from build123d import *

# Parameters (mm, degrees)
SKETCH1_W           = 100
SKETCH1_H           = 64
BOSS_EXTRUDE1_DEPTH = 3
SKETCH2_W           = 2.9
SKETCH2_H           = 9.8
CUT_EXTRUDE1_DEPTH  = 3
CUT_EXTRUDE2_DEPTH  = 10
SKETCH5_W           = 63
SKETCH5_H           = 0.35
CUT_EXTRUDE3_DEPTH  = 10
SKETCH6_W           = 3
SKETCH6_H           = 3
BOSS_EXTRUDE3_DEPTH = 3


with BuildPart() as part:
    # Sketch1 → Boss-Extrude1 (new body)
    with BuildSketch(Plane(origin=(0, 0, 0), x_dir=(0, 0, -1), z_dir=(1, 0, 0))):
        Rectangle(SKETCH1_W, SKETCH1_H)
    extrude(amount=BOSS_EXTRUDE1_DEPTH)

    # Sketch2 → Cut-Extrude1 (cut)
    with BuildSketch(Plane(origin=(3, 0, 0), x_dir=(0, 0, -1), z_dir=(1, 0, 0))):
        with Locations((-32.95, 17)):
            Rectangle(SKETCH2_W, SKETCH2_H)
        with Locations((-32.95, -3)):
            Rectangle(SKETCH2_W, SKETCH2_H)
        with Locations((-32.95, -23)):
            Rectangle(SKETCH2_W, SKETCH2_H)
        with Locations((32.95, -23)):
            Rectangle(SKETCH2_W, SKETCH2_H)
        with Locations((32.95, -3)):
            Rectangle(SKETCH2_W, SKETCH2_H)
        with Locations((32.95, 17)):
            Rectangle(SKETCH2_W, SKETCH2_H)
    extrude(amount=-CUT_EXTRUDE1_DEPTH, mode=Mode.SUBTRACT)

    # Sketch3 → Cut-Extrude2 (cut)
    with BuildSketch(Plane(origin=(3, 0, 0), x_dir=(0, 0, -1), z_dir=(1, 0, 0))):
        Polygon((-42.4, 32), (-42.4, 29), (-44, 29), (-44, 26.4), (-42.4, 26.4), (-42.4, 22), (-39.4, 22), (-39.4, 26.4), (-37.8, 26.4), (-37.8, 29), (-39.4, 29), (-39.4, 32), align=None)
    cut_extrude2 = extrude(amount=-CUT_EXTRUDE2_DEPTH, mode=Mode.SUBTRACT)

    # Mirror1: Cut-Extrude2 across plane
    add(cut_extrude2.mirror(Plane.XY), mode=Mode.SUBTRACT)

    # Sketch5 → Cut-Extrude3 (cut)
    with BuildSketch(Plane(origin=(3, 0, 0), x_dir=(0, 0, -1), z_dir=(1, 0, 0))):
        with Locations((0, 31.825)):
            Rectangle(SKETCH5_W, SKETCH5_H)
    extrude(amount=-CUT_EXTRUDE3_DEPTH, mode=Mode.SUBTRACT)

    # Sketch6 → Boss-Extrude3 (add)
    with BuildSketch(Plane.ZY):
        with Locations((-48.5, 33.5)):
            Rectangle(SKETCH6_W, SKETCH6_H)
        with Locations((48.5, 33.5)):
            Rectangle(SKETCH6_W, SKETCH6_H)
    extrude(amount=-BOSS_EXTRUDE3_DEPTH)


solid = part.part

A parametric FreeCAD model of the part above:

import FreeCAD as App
import Part
import Sketcher
from FreeCAD import Vector

doc = App.newDocument("Part")
body = doc.addObject("PartDesign::Body", "Body")

sketch1 = doc.addObject("Sketcher::SketchObject", "Sketch")
body.addObject(sketch1)
sketch1.AttachmentSupport = (doc.YZ_Plane, [""])
sketch1.MapMode = "FlatFace"
sketch1.addGeometry(Part.LineSegment(Vector(32, 50, 0), Vector(-32, 50, 0)), False)
sketch1.addGeometry(Part.LineSegment(Vector(-32, 50, 0), Vector(-32, -50, 0)), False)
sketch1.addGeometry(Part.LineSegment(Vector(-32, -50, 0), Vector(32, -50, 0)), False)
sketch1.addGeometry(Part.LineSegment(Vector(32, -50, 0), Vector(32, 50, 0)), False)
sketch1.addConstraint(Sketcher.Constraint("Coincident", 0, 2, 1, 1))
sketch1.addConstraint(Sketcher.Constraint("Coincident", 1, 2, 2, 1))
sketch1.addConstraint(Sketcher.Constraint("Coincident", 2, 2, 3, 1))
sketch1.addConstraint(Sketcher.Constraint("Coincident", 3, 2, 0, 1))
sketch1.addConstraint(Sketcher.Constraint("Horizontal", 0))
sketch1.addConstraint(Sketcher.Constraint("Vertical", 1))
sketch1.addConstraint(Sketcher.Constraint("Horizontal", 2))
sketch1.addConstraint(Sketcher.Constraint("Vertical", 3))
sketch1.addConstraint(Sketcher.Constraint("Symmetric", 0, 2, 2, 2, -1, 1))
sketch1.addConstraint(Sketcher.Constraint("DistanceX", 0, 2, 0, 1, 64.0))
sketch1.addConstraint(Sketcher.Constraint("DistanceY", 1, 2, 1, 1, 100.0))
pad1 = doc.addObject("PartDesign::Pad", "Pad")
body.addObject(pad1)
pad1.Profile = sketch1
pad1.Length = 3

sketch2 = doc.addObject("Sketcher::SketchObject", "Sketch001")
body.addObject(sketch2)
sketch2.AttachmentSupport = (doc.YZ_Plane, [""])
sketch2.MapMode = "FlatFace"
sketch2.AttachmentOffset = App.Placement(Vector(0, 0, 3), App.Rotation())
sketch2.addGeometry(Part.LineSegment(Vector(21.9, 34.4, 0), Vector(12.1, 34.4, 0)), False)
sketch2.addGeometry(Part.LineSegment(Vector(12.1, 34.4, 0), Vector(12.1, 31.5, 0)), False)
sketch2.addGeometry(Part.LineSegment(Vector(12.1, 31.5, 0), Vector(21.9, 31.5, 0)), False)
sketch2.addGeometry(Part.LineSegment(Vector(21.9, 31.5, 0), Vector(21.9, 34.4, 0)), False)
sketch2.addGeometry(Part.LineSegment(Vector(1.9, 34.4, 0), Vector(-7.9, 34.4, 0)), False)
sketch2.addGeometry(Part.LineSegment(Vector(-7.9, 34.4, 0), Vector(-7.9, 31.5, 0)), False)
sketch2.addGeometry(Part.LineSegment(Vector(-7.9, 31.5, 0), Vector(1.9, 31.5, 0)), False)
sketch2.addGeometry(Part.LineSegment(Vector(1.9, 31.5, 0), Vector(1.9, 34.4, 0)), False)
sketch2.addGeometry(Part.LineSegment(Vector(-18.1, 34.4, 0), Vector(-27.9, 34.4, 0)), False)
sketch2.addGeometry(Part.LineSegment(Vector(-27.9, 34.4, 0), Vector(-27.9, 31.5, 0)), False)
sketch2.addGeometry(Part.LineSegment(Vector(-27.9, 31.5, 0), Vector(-18.1, 31.5, 0)), False)
sketch2.addGeometry(Part.LineSegment(Vector(-18.1, 31.5, 0), Vector(-18.1, 34.4, 0)), False)
sketch2.addGeometry(Part.LineSegment(Vector(-18.1, -31.5, 0), Vector(-27.9, -31.5, 0)), False)
sketch2.addGeometry(Part.LineSegment(Vector(-27.9, -31.5, 0), Vector(-27.9, -34.4, 0)), False)
sketch2.addGeometry(Part.LineSegment(Vector(-27.9, -34.4, 0), Vector(-18.1, -34.4, 0)), False)
sketch2.addGeometry(Part.LineSegment(Vector(-18.1, -34.4, 0), Vector(-18.1, -31.5, 0)), False)
sketch2.addGeometry(Part.LineSegment(Vector(1.9, -31.5, 0), Vector(-7.9, -31.5, 0)), False)
sketch2.addGeometry(Part.LineSegment(Vector(-7.9, -31.5, 0), Vector(-7.9, -34.4, 0)), False)
sketch2.addGeometry(Part.LineSegment(Vector(-7.9, -34.4, 0), Vector(1.9, -34.4, 0)), False)
sketch2.addGeometry(Part.LineSegment(Vector(1.9, -34.4, 0), Vector(1.9, -31.5, 0)), False)
sketch2.addGeometry(Part.LineSegment(Vector(21.9, -31.5, 0), Vector(12.1, -31.5, 0)), False)
sketch2.addGeometry(Part.LineSegment(Vector(12.1, -31.5, 0), Vector(12.1, -34.4, 0)), False)
sketch2.addGeometry(Part.LineSegment(Vector(12.1, -34.4, 0), Vector(21.9, -34.4, 0)), False)
sketch2.addGeometry(Part.LineSegment(Vector(21.9, -34.4, 0), Vector(21.9, -31.5, 0)), False)
sketch2.addConstraint(Sketcher.Constraint("Coincident", 0, 2, 1, 1))
sketch2.addConstraint(Sketcher.Constraint("Coincident", 1, 2, 2, 1))
sketch2.addConstraint(Sketcher.Constraint("Coincident", 2, 2, 3, 1))
sketch2.addConstraint(Sketcher.Constraint("Coincident", 3, 2, 0, 1))
sketch2.addConstraint(Sketcher.Constraint("Coincident", 4, 2, 5, 1))
sketch2.addConstraint(Sketcher.Constraint("Coincident", 5, 2, 6, 1))
sketch2.addConstraint(Sketcher.Constraint("Coincident", 6, 2, 7, 1))
sketch2.addConstraint(Sketcher.Constraint("Coincident", 7, 2, 4, 1))
sketch2.addConstraint(Sketcher.Constraint("Coincident", 8, 2, 9, 1))
sketch2.addConstraint(Sketcher.Constraint("Coincident", 9, 2, 10, 1))
sketch2.addConstraint(Sketcher.Constraint("Coincident", 10, 2, 11, 1))
sketch2.addConstraint(Sketcher.Constraint("Coincident", 11, 2, 8, 1))
sketch2.addConstraint(Sketcher.Constraint("Coincident", 12, 2, 13, 1))
sketch2.addConstraint(Sketcher.Constraint("Coincident", 13, 2, 14, 1))
sketch2.addConstraint(Sketcher.Constraint("Coincident", 14, 2, 15, 1))
sketch2.addConstraint(Sketcher.Constraint("Coincident", 15, 2, 12, 1))
sketch2.addConstraint(Sketcher.Constraint("Coincident", 16, 2, 17, 1))
sketch2.addConstraint(Sketcher.Constraint("Coincident", 17, 2, 18, 1))
sketch2.addConstraint(Sketcher.Constraint("Coincident", 18, 2, 19, 1))
sketch2.addConstraint(Sketcher.Constraint("Coincident", 19, 2, 16, 1))
sketch2.addConstraint(Sketcher.Constraint("Coincident", 20, 2, 21, 1))
sketch2.addConstraint(Sketcher.Constraint("Coincident", 21, 2, 22, 1))
sketch2.addConstraint(Sketcher.Constraint("Coincident", 22, 2, 23, 1))
sketch2.addConstraint(Sketcher.Constraint("Coincident", 23, 2, 20, 1))
sketch2.addConstraint(Sketcher.Constraint("Horizontal", 0))
sketch2.addConstraint(Sketcher.Constraint("Vertical", 1))
sketch2.addConstraint(Sketcher.Constraint("Horizontal", 2))
sketch2.addConstraint(Sketcher.Constraint("Vertical", 3))
sketch2.addConstraint(Sketcher.Constraint("Horizontal", 4))
sketch2.addConstraint(Sketcher.Constraint("Vertical", 5))
sketch2.addConstraint(Sketcher.Constraint("Horizontal", 6))
sketch2.addConstraint(Sketcher.Constraint("Vertical", 7))
sketch2.addConstraint(Sketcher.Constraint("Horizontal", 8))
sketch2.addConstraint(Sketcher.Constraint("Vertical", 9))
sketch2.addConstraint(Sketcher.Constraint("Horizontal", 10))
sketch2.addConstraint(Sketcher.Constraint("Vertical", 11))
sketch2.addConstraint(Sketcher.Constraint("Horizontal", 12))
sketch2.addConstraint(Sketcher.Constraint("Vertical", 13))
sketch2.addConstraint(Sketcher.Constraint("Horizontal", 14))
sketch2.addConstraint(Sketcher.Constraint("Vertical", 15))
sketch2.addConstraint(Sketcher.Constraint("Horizontal", 16))
sketch2.addConstraint(Sketcher.Constraint("Vertical", 17))
sketch2.addConstraint(Sketcher.Constraint("Horizontal", 18))
sketch2.addConstraint(Sketcher.Constraint("Vertical", 19))
sketch2.addConstraint(Sketcher.Constraint("Horizontal", 20))
sketch2.addConstraint(Sketcher.Constraint("Vertical", 21))
sketch2.addConstraint(Sketcher.Constraint("Horizontal", 22))
sketch2.addConstraint(Sketcher.Constraint("Vertical", 23))
sketch2.addConstraint(Sketcher.Constraint("Symmetric", 9, 2, 12, 2, -1))
sketch2.addConstraint(Sketcher.Constraint("Symmetric", 11, 2, 14, 2, -1))
sketch2.addConstraint(Sketcher.Constraint("Symmetric", 5, 2, 16, 2, -1))
sketch2.addConstraint(Sketcher.Constraint("Symmetric", 7, 2, 18, 2, -1))
sketch2.addConstraint(Sketcher.Constraint("Symmetric", 1, 2, 20, 2, -1))
sketch2.addConstraint(Sketcher.Constraint("Symmetric", 3, 2, 22, 2, -1))
sketch2.addConstraint(Sketcher.Constraint("Horizontal", 3, 2, 4, 2))
sketch2.addConstraint(Sketcher.Constraint("Horizontal", 2, 2, 5, 2))
sketch2.addConstraint(Sketcher.Constraint("Horizontal", 7, 2, 8, 2))
sketch2.addConstraint(Sketcher.Constraint("Horizontal", 6, 2, 9, 2))
sketch2.addConstraint(Sketcher.Constraint("Equal", 2, 4))
sketch2.addConstraint(Sketcher.Constraint("Equal", 6, 8))
sketch2.addConstraint(Sketcher.Constraint("DistanceX", 0, 2, 0, 1, 9.8))
sketch2.addConstraint(Sketcher.Constraint("DistanceY", 1, 2, 1, 1, 2.9))
sketch2.addConstraint(Sketcher.Constraint("DistanceX", 4, 2, 0, 2, 20.0))
sketch2.addConstraint(Sketcher.Constraint("DistanceX", 8, 2, 4, 2, 20.0))
sketch2.addConstraint(Sketcher.Constraint("DistanceY", 12, 2, 9, 2, 63.0))
sketch2.addConstraint(Sketcher.Constraint("DistanceX", -1, 1, 0, 2, 12.1))
pocket1 = doc.addObject("PartDesign::Pocket", "Pocket")
body.addObject(pocket1)
pocket1.Profile = sketch2
pocket1.Length = 3

sketch3 = doc.addObject("Sketcher::SketchObject", "Sketch002")
body.addObject(sketch3)
sketch3.AttachmentSupport = (doc.YZ_Plane, [""])
sketch3.MapMode = "FlatFace"
sketch3.AttachmentOffset = App.Placement(Vector(0, 0, 3), App.Rotation())
sketch3.addGeometry(Part.LineSegment(Vector(32, 42.4, 0), Vector(29, 42.4, 0)), False)
sketch3.addGeometry(Part.LineSegment(Vector(29, 42.4, 0), Vector(29, 44, 0)), False)
sketch3.addGeometry(Part.LineSegment(Vector(29, 44, 0), Vector(26.4, 44, 0)), False)
sketch3.addGeometry(Part.LineSegment(Vector(26.4, 44, 0), Vector(26.4, 42.4, 0)), False)
sketch3.addGeometry(Part.LineSegment(Vector(26.4, 42.4, 0), Vector(22, 42.4, 0)), False)
sketch3.addGeometry(Part.LineSegment(Vector(22, 42.4, 0), Vector(22, 39.4, 0)), False)
sketch3.addGeometry(Part.LineSegment(Vector(22, 39.4, 0), Vector(26.4, 39.4, 0)), False)
sketch3.addGeometry(Part.LineSegment(Vector(26.4, 39.4, 0), Vector(26.4, 37.8, 0)), False)
sketch3.addGeometry(Part.LineSegment(Vector(26.4, 37.8, 0), Vector(29, 37.8, 0)), False)
sketch3.addGeometry(Part.LineSegment(Vector(29, 37.8, 0), Vector(29, 39.4, 0)), False)
sketch3.addGeometry(Part.LineSegment(Vector(29, 39.4, 0), Vector(32, 39.4, 0)), False)
sketch3.addGeometry(Part.LineSegment(Vector(32, 39.4, 0), Vector(32, 42.4, 0)), False)
sketch3.addConstraint(Sketcher.Constraint("Coincident", 0, 2, 1, 1))
sketch3.addConstraint(Sketcher.Constraint("Coincident", 1, 2, 2, 1))
sketch3.addConstraint(Sketcher.Constraint("Coincident", 2, 2, 3, 1))
sketch3.addConstraint(Sketcher.Constraint("Coincident", 3, 2, 4, 1))
sketch3.addConstraint(Sketcher.Constraint("Coincident", 4, 2, 5, 1))
sketch3.addConstraint(Sketcher.Constraint("Coincident", 5, 2, 6, 1))
sketch3.addConstraint(Sketcher.Constraint("Coincident", 6, 2, 7, 1))
sketch3.addConstraint(Sketcher.Constraint("Coincident", 7, 2, 8, 1))
sketch3.addConstraint(Sketcher.Constraint("Coincident", 8, 2, 9, 1))
sketch3.addConstraint(Sketcher.Constraint("Coincident", 9, 2, 10, 1))
sketch3.addConstraint(Sketcher.Constraint("Coincident", 10, 2, 11, 1))
sketch3.addConstraint(Sketcher.Constraint("Coincident", 11, 2, 0, 1))
sketch3.addConstraint(Sketcher.Constraint("Horizontal", 0))
sketch3.addConstraint(Sketcher.Constraint("Vertical", 1))
sketch3.addConstraint(Sketcher.Constraint("Horizontal", 2))
sketch3.addConstraint(Sketcher.Constraint("Vertical", 3))
sketch3.addConstraint(Sketcher.Constraint("Horizontal", 4))
sketch3.addConstraint(Sketcher.Constraint("Vertical", 5))
sketch3.addConstraint(Sketcher.Constraint("Horizontal", 6))
sketch3.addConstraint(Sketcher.Constraint("Vertical", 7))
sketch3.addConstraint(Sketcher.Constraint("Horizontal", 8))
sketch3.addConstraint(Sketcher.Constraint("Vertical", 9))
sketch3.addConstraint(Sketcher.Constraint("Horizontal", 10))
sketch3.addConstraint(Sketcher.Constraint("Vertical", 11))
sketch3.addConstraint(Sketcher.Constraint("Horizontal", 0, 2, 3, 2))
sketch3.addConstraint(Sketcher.Constraint("Horizontal", 6, 2, 9, 2))
sketch3.addConstraint(Sketcher.Constraint("Vertical", 3, 2, 6, 2))
sketch3.addConstraint(Sketcher.Constraint("Vertical", 1, 2, 8, 2))
sketch3.addConstraint(Sketcher.Constraint("Equal", 10, 5))
sketch3.addConstraint(Sketcher.Constraint("Equal", 3, 7))
sketch3.addConstraint(Sketcher.Constraint("DistanceX", 0, 2, 0, 1, 3.0))
sketch3.addConstraint(Sketcher.Constraint("DistanceX", 2, 2, 2, 1, 2.6))
sketch3.addConstraint(Sketcher.Constraint("DistanceX", 4, 2, 4, 1, 4.4))
sketch3.addConstraint(Sketcher.Constraint("DistanceY", 1, 1, 1, 2, 1.6))
sketch3.addConstraint(Sketcher.Constraint("DistanceX", -1, 1, 0, 2, 29.0))
sketch3.addConstraint(Sketcher.Constraint("DistanceY", -1, 1, 1, 2, 44.0))
pocket2 = doc.addObject("PartDesign::Pocket", "Pocket001")
body.addObject(pocket2)
pocket2.Profile = sketch3
pocket2.Length = 10
doc.recompute()

mirrored = doc.addObject("PartDesign::Mirrored", "Mirrored")
body.addObject(mirrored)
mirrored.Originals = [pocket2]
mirrored.MirrorPlane = (doc.XY_Plane, [""])
body.Tip = mirrored

sketch4 = doc.addObject("Sketcher::SketchObject", "Sketch003")
body.addObject(sketch4)
sketch4.AttachmentSupport = (doc.YZ_Plane, [""])
sketch4.MapMode = "FlatFace"
sketch4.AttachmentOffset = App.Placement(Vector(0, 0, 3), App.Rotation())
sketch4.addGeometry(Part.LineSegment(Vector(32, 31.5, 0), Vector(31.65, 31.5, 0)), False)
sketch4.addGeometry(Part.LineSegment(Vector(31.65, 31.5, 0), Vector(31.65, -31.5, 0)), False)
sketch4.addGeometry(Part.LineSegment(Vector(31.65, -31.5, 0), Vector(32, -31.5, 0)), False)
sketch4.addGeometry(Part.LineSegment(Vector(32, -31.5, 0), Vector(32, 31.5, 0)), False)
sketch4.addConstraint(Sketcher.Constraint("Coincident", 0, 2, 1, 1))
sketch4.addConstraint(Sketcher.Constraint("Coincident", 1, 2, 2, 1))
sketch4.addConstraint(Sketcher.Constraint("Coincident", 2, 2, 3, 1))
sketch4.addConstraint(Sketcher.Constraint("Coincident", 3, 2, 0, 1))
sketch4.addConstraint(Sketcher.Constraint("Horizontal", 0))
sketch4.addConstraint(Sketcher.Constraint("Vertical", 1))
sketch4.addConstraint(Sketcher.Constraint("Horizontal", 2))
sketch4.addConstraint(Sketcher.Constraint("Vertical", 3))
sketch4.addConstraint(Sketcher.Constraint("DistanceY", 1, 2, 1, 1, 63.0))
sketch4.addConstraint(Sketcher.Constraint("DistanceX", -1, 1, 2, 2, 32.0))
sketch4.addConstraint(Sketcher.Constraint("DistanceX", 0, 2, 0, 1, 0.35))
sketch4.addConstraint(Sketcher.Constraint("DistanceY", -1, 1, 0, 2, 31.5))
pocket3 = doc.addObject("PartDesign::Pocket", "Pocket002")
body.addObject(pocket3)
pocket3.Profile = sketch4
pocket3.Length = 10

sketch5 = doc.addObject("Sketcher::SketchObject", "Sketch004")
body.addObject(sketch5)
sketch5.AttachmentSupport = (doc.YZ_Plane, [""])
sketch5.MapMode = "FlatFace"
sketch5.addGeometry(Part.LineSegment(Vector(35, -50, 0), Vector(32, -50, 0)), False)
sketch5.addGeometry(Part.LineSegment(Vector(32, -50, 0), Vector(32, -47, 0)), False)
sketch5.addGeometry(Part.LineSegment(Vector(32, -47, 0), Vector(35, -47, 0)), False)
sketch5.addGeometry(Part.LineSegment(Vector(35, -47, 0), Vector(35, -50, 0)), False)
sketch5.addGeometry(Part.LineSegment(Vector(35, 47, 0), Vector(32, 47, 0)), False)
sketch5.addGeometry(Part.LineSegment(Vector(32, 47, 0), Vector(32, 50, 0)), False)
sketch5.addGeometry(Part.LineSegment(Vector(32, 50, 0), Vector(35, 50, 0)), False)
sketch5.addGeometry(Part.LineSegment(Vector(35, 50, 0), Vector(35, 47, 0)), False)
sketch5.addConstraint(Sketcher.Constraint("Coincident", 0, 2, 1, 1))
sketch5.addConstraint(Sketcher.Constraint("Coincident", 1, 2, 2, 1))
sketch5.addConstraint(Sketcher.Constraint("Coincident", 2, 2, 3, 1))
sketch5.addConstraint(Sketcher.Constraint("Coincident", 3, 2, 0, 1))
sketch5.addConstraint(Sketcher.Constraint("Coincident", 4, 2, 5, 1))
sketch5.addConstraint(Sketcher.Constraint("Coincident", 5, 2, 6, 1))
sketch5.addConstraint(Sketcher.Constraint("Coincident", 6, 2, 7, 1))
sketch5.addConstraint(Sketcher.Constraint("Coincident", 7, 2, 4, 1))
sketch5.addConstraint(Sketcher.Constraint("Horizontal", 0))
sketch5.addConstraint(Sketcher.Constraint("Vertical", 1))
sketch5.addConstraint(Sketcher.Constraint("Horizontal", 2))
sketch5.addConstraint(Sketcher.Constraint("Vertical", 3))
sketch5.addConstraint(Sketcher.Constraint("Horizontal", 4))
sketch5.addConstraint(Sketcher.Constraint("Vertical", 5))
sketch5.addConstraint(Sketcher.Constraint("Horizontal", 6))
sketch5.addConstraint(Sketcher.Constraint("Vertical", 7))
sketch5.addConstraint(Sketcher.Constraint("Symmetric", 1, 2, 4, 2, -1))
sketch5.addConstraint(Sketcher.Constraint("Symmetric", 3, 2, 6, 2, -1))
sketch5.addConstraint(Sketcher.Constraint("Equal", 6, 1))
sketch5.addConstraint(Sketcher.Constraint("DistanceX", 0, 2, 0, 1, 3.0))
sketch5.addConstraint(Sketcher.Constraint("DistanceX", -1, 1, 0, 2, 32.0))
sketch5.addConstraint(Sketcher.Constraint("DistanceY", 0, 2, -1, 1, 50.0))
pad2 = doc.addObject("PartDesign::Pad", "Pad001")
body.addObject(pad2)
pad2.Profile = sketch5
pad2.Length = 3

doc.recompute()
